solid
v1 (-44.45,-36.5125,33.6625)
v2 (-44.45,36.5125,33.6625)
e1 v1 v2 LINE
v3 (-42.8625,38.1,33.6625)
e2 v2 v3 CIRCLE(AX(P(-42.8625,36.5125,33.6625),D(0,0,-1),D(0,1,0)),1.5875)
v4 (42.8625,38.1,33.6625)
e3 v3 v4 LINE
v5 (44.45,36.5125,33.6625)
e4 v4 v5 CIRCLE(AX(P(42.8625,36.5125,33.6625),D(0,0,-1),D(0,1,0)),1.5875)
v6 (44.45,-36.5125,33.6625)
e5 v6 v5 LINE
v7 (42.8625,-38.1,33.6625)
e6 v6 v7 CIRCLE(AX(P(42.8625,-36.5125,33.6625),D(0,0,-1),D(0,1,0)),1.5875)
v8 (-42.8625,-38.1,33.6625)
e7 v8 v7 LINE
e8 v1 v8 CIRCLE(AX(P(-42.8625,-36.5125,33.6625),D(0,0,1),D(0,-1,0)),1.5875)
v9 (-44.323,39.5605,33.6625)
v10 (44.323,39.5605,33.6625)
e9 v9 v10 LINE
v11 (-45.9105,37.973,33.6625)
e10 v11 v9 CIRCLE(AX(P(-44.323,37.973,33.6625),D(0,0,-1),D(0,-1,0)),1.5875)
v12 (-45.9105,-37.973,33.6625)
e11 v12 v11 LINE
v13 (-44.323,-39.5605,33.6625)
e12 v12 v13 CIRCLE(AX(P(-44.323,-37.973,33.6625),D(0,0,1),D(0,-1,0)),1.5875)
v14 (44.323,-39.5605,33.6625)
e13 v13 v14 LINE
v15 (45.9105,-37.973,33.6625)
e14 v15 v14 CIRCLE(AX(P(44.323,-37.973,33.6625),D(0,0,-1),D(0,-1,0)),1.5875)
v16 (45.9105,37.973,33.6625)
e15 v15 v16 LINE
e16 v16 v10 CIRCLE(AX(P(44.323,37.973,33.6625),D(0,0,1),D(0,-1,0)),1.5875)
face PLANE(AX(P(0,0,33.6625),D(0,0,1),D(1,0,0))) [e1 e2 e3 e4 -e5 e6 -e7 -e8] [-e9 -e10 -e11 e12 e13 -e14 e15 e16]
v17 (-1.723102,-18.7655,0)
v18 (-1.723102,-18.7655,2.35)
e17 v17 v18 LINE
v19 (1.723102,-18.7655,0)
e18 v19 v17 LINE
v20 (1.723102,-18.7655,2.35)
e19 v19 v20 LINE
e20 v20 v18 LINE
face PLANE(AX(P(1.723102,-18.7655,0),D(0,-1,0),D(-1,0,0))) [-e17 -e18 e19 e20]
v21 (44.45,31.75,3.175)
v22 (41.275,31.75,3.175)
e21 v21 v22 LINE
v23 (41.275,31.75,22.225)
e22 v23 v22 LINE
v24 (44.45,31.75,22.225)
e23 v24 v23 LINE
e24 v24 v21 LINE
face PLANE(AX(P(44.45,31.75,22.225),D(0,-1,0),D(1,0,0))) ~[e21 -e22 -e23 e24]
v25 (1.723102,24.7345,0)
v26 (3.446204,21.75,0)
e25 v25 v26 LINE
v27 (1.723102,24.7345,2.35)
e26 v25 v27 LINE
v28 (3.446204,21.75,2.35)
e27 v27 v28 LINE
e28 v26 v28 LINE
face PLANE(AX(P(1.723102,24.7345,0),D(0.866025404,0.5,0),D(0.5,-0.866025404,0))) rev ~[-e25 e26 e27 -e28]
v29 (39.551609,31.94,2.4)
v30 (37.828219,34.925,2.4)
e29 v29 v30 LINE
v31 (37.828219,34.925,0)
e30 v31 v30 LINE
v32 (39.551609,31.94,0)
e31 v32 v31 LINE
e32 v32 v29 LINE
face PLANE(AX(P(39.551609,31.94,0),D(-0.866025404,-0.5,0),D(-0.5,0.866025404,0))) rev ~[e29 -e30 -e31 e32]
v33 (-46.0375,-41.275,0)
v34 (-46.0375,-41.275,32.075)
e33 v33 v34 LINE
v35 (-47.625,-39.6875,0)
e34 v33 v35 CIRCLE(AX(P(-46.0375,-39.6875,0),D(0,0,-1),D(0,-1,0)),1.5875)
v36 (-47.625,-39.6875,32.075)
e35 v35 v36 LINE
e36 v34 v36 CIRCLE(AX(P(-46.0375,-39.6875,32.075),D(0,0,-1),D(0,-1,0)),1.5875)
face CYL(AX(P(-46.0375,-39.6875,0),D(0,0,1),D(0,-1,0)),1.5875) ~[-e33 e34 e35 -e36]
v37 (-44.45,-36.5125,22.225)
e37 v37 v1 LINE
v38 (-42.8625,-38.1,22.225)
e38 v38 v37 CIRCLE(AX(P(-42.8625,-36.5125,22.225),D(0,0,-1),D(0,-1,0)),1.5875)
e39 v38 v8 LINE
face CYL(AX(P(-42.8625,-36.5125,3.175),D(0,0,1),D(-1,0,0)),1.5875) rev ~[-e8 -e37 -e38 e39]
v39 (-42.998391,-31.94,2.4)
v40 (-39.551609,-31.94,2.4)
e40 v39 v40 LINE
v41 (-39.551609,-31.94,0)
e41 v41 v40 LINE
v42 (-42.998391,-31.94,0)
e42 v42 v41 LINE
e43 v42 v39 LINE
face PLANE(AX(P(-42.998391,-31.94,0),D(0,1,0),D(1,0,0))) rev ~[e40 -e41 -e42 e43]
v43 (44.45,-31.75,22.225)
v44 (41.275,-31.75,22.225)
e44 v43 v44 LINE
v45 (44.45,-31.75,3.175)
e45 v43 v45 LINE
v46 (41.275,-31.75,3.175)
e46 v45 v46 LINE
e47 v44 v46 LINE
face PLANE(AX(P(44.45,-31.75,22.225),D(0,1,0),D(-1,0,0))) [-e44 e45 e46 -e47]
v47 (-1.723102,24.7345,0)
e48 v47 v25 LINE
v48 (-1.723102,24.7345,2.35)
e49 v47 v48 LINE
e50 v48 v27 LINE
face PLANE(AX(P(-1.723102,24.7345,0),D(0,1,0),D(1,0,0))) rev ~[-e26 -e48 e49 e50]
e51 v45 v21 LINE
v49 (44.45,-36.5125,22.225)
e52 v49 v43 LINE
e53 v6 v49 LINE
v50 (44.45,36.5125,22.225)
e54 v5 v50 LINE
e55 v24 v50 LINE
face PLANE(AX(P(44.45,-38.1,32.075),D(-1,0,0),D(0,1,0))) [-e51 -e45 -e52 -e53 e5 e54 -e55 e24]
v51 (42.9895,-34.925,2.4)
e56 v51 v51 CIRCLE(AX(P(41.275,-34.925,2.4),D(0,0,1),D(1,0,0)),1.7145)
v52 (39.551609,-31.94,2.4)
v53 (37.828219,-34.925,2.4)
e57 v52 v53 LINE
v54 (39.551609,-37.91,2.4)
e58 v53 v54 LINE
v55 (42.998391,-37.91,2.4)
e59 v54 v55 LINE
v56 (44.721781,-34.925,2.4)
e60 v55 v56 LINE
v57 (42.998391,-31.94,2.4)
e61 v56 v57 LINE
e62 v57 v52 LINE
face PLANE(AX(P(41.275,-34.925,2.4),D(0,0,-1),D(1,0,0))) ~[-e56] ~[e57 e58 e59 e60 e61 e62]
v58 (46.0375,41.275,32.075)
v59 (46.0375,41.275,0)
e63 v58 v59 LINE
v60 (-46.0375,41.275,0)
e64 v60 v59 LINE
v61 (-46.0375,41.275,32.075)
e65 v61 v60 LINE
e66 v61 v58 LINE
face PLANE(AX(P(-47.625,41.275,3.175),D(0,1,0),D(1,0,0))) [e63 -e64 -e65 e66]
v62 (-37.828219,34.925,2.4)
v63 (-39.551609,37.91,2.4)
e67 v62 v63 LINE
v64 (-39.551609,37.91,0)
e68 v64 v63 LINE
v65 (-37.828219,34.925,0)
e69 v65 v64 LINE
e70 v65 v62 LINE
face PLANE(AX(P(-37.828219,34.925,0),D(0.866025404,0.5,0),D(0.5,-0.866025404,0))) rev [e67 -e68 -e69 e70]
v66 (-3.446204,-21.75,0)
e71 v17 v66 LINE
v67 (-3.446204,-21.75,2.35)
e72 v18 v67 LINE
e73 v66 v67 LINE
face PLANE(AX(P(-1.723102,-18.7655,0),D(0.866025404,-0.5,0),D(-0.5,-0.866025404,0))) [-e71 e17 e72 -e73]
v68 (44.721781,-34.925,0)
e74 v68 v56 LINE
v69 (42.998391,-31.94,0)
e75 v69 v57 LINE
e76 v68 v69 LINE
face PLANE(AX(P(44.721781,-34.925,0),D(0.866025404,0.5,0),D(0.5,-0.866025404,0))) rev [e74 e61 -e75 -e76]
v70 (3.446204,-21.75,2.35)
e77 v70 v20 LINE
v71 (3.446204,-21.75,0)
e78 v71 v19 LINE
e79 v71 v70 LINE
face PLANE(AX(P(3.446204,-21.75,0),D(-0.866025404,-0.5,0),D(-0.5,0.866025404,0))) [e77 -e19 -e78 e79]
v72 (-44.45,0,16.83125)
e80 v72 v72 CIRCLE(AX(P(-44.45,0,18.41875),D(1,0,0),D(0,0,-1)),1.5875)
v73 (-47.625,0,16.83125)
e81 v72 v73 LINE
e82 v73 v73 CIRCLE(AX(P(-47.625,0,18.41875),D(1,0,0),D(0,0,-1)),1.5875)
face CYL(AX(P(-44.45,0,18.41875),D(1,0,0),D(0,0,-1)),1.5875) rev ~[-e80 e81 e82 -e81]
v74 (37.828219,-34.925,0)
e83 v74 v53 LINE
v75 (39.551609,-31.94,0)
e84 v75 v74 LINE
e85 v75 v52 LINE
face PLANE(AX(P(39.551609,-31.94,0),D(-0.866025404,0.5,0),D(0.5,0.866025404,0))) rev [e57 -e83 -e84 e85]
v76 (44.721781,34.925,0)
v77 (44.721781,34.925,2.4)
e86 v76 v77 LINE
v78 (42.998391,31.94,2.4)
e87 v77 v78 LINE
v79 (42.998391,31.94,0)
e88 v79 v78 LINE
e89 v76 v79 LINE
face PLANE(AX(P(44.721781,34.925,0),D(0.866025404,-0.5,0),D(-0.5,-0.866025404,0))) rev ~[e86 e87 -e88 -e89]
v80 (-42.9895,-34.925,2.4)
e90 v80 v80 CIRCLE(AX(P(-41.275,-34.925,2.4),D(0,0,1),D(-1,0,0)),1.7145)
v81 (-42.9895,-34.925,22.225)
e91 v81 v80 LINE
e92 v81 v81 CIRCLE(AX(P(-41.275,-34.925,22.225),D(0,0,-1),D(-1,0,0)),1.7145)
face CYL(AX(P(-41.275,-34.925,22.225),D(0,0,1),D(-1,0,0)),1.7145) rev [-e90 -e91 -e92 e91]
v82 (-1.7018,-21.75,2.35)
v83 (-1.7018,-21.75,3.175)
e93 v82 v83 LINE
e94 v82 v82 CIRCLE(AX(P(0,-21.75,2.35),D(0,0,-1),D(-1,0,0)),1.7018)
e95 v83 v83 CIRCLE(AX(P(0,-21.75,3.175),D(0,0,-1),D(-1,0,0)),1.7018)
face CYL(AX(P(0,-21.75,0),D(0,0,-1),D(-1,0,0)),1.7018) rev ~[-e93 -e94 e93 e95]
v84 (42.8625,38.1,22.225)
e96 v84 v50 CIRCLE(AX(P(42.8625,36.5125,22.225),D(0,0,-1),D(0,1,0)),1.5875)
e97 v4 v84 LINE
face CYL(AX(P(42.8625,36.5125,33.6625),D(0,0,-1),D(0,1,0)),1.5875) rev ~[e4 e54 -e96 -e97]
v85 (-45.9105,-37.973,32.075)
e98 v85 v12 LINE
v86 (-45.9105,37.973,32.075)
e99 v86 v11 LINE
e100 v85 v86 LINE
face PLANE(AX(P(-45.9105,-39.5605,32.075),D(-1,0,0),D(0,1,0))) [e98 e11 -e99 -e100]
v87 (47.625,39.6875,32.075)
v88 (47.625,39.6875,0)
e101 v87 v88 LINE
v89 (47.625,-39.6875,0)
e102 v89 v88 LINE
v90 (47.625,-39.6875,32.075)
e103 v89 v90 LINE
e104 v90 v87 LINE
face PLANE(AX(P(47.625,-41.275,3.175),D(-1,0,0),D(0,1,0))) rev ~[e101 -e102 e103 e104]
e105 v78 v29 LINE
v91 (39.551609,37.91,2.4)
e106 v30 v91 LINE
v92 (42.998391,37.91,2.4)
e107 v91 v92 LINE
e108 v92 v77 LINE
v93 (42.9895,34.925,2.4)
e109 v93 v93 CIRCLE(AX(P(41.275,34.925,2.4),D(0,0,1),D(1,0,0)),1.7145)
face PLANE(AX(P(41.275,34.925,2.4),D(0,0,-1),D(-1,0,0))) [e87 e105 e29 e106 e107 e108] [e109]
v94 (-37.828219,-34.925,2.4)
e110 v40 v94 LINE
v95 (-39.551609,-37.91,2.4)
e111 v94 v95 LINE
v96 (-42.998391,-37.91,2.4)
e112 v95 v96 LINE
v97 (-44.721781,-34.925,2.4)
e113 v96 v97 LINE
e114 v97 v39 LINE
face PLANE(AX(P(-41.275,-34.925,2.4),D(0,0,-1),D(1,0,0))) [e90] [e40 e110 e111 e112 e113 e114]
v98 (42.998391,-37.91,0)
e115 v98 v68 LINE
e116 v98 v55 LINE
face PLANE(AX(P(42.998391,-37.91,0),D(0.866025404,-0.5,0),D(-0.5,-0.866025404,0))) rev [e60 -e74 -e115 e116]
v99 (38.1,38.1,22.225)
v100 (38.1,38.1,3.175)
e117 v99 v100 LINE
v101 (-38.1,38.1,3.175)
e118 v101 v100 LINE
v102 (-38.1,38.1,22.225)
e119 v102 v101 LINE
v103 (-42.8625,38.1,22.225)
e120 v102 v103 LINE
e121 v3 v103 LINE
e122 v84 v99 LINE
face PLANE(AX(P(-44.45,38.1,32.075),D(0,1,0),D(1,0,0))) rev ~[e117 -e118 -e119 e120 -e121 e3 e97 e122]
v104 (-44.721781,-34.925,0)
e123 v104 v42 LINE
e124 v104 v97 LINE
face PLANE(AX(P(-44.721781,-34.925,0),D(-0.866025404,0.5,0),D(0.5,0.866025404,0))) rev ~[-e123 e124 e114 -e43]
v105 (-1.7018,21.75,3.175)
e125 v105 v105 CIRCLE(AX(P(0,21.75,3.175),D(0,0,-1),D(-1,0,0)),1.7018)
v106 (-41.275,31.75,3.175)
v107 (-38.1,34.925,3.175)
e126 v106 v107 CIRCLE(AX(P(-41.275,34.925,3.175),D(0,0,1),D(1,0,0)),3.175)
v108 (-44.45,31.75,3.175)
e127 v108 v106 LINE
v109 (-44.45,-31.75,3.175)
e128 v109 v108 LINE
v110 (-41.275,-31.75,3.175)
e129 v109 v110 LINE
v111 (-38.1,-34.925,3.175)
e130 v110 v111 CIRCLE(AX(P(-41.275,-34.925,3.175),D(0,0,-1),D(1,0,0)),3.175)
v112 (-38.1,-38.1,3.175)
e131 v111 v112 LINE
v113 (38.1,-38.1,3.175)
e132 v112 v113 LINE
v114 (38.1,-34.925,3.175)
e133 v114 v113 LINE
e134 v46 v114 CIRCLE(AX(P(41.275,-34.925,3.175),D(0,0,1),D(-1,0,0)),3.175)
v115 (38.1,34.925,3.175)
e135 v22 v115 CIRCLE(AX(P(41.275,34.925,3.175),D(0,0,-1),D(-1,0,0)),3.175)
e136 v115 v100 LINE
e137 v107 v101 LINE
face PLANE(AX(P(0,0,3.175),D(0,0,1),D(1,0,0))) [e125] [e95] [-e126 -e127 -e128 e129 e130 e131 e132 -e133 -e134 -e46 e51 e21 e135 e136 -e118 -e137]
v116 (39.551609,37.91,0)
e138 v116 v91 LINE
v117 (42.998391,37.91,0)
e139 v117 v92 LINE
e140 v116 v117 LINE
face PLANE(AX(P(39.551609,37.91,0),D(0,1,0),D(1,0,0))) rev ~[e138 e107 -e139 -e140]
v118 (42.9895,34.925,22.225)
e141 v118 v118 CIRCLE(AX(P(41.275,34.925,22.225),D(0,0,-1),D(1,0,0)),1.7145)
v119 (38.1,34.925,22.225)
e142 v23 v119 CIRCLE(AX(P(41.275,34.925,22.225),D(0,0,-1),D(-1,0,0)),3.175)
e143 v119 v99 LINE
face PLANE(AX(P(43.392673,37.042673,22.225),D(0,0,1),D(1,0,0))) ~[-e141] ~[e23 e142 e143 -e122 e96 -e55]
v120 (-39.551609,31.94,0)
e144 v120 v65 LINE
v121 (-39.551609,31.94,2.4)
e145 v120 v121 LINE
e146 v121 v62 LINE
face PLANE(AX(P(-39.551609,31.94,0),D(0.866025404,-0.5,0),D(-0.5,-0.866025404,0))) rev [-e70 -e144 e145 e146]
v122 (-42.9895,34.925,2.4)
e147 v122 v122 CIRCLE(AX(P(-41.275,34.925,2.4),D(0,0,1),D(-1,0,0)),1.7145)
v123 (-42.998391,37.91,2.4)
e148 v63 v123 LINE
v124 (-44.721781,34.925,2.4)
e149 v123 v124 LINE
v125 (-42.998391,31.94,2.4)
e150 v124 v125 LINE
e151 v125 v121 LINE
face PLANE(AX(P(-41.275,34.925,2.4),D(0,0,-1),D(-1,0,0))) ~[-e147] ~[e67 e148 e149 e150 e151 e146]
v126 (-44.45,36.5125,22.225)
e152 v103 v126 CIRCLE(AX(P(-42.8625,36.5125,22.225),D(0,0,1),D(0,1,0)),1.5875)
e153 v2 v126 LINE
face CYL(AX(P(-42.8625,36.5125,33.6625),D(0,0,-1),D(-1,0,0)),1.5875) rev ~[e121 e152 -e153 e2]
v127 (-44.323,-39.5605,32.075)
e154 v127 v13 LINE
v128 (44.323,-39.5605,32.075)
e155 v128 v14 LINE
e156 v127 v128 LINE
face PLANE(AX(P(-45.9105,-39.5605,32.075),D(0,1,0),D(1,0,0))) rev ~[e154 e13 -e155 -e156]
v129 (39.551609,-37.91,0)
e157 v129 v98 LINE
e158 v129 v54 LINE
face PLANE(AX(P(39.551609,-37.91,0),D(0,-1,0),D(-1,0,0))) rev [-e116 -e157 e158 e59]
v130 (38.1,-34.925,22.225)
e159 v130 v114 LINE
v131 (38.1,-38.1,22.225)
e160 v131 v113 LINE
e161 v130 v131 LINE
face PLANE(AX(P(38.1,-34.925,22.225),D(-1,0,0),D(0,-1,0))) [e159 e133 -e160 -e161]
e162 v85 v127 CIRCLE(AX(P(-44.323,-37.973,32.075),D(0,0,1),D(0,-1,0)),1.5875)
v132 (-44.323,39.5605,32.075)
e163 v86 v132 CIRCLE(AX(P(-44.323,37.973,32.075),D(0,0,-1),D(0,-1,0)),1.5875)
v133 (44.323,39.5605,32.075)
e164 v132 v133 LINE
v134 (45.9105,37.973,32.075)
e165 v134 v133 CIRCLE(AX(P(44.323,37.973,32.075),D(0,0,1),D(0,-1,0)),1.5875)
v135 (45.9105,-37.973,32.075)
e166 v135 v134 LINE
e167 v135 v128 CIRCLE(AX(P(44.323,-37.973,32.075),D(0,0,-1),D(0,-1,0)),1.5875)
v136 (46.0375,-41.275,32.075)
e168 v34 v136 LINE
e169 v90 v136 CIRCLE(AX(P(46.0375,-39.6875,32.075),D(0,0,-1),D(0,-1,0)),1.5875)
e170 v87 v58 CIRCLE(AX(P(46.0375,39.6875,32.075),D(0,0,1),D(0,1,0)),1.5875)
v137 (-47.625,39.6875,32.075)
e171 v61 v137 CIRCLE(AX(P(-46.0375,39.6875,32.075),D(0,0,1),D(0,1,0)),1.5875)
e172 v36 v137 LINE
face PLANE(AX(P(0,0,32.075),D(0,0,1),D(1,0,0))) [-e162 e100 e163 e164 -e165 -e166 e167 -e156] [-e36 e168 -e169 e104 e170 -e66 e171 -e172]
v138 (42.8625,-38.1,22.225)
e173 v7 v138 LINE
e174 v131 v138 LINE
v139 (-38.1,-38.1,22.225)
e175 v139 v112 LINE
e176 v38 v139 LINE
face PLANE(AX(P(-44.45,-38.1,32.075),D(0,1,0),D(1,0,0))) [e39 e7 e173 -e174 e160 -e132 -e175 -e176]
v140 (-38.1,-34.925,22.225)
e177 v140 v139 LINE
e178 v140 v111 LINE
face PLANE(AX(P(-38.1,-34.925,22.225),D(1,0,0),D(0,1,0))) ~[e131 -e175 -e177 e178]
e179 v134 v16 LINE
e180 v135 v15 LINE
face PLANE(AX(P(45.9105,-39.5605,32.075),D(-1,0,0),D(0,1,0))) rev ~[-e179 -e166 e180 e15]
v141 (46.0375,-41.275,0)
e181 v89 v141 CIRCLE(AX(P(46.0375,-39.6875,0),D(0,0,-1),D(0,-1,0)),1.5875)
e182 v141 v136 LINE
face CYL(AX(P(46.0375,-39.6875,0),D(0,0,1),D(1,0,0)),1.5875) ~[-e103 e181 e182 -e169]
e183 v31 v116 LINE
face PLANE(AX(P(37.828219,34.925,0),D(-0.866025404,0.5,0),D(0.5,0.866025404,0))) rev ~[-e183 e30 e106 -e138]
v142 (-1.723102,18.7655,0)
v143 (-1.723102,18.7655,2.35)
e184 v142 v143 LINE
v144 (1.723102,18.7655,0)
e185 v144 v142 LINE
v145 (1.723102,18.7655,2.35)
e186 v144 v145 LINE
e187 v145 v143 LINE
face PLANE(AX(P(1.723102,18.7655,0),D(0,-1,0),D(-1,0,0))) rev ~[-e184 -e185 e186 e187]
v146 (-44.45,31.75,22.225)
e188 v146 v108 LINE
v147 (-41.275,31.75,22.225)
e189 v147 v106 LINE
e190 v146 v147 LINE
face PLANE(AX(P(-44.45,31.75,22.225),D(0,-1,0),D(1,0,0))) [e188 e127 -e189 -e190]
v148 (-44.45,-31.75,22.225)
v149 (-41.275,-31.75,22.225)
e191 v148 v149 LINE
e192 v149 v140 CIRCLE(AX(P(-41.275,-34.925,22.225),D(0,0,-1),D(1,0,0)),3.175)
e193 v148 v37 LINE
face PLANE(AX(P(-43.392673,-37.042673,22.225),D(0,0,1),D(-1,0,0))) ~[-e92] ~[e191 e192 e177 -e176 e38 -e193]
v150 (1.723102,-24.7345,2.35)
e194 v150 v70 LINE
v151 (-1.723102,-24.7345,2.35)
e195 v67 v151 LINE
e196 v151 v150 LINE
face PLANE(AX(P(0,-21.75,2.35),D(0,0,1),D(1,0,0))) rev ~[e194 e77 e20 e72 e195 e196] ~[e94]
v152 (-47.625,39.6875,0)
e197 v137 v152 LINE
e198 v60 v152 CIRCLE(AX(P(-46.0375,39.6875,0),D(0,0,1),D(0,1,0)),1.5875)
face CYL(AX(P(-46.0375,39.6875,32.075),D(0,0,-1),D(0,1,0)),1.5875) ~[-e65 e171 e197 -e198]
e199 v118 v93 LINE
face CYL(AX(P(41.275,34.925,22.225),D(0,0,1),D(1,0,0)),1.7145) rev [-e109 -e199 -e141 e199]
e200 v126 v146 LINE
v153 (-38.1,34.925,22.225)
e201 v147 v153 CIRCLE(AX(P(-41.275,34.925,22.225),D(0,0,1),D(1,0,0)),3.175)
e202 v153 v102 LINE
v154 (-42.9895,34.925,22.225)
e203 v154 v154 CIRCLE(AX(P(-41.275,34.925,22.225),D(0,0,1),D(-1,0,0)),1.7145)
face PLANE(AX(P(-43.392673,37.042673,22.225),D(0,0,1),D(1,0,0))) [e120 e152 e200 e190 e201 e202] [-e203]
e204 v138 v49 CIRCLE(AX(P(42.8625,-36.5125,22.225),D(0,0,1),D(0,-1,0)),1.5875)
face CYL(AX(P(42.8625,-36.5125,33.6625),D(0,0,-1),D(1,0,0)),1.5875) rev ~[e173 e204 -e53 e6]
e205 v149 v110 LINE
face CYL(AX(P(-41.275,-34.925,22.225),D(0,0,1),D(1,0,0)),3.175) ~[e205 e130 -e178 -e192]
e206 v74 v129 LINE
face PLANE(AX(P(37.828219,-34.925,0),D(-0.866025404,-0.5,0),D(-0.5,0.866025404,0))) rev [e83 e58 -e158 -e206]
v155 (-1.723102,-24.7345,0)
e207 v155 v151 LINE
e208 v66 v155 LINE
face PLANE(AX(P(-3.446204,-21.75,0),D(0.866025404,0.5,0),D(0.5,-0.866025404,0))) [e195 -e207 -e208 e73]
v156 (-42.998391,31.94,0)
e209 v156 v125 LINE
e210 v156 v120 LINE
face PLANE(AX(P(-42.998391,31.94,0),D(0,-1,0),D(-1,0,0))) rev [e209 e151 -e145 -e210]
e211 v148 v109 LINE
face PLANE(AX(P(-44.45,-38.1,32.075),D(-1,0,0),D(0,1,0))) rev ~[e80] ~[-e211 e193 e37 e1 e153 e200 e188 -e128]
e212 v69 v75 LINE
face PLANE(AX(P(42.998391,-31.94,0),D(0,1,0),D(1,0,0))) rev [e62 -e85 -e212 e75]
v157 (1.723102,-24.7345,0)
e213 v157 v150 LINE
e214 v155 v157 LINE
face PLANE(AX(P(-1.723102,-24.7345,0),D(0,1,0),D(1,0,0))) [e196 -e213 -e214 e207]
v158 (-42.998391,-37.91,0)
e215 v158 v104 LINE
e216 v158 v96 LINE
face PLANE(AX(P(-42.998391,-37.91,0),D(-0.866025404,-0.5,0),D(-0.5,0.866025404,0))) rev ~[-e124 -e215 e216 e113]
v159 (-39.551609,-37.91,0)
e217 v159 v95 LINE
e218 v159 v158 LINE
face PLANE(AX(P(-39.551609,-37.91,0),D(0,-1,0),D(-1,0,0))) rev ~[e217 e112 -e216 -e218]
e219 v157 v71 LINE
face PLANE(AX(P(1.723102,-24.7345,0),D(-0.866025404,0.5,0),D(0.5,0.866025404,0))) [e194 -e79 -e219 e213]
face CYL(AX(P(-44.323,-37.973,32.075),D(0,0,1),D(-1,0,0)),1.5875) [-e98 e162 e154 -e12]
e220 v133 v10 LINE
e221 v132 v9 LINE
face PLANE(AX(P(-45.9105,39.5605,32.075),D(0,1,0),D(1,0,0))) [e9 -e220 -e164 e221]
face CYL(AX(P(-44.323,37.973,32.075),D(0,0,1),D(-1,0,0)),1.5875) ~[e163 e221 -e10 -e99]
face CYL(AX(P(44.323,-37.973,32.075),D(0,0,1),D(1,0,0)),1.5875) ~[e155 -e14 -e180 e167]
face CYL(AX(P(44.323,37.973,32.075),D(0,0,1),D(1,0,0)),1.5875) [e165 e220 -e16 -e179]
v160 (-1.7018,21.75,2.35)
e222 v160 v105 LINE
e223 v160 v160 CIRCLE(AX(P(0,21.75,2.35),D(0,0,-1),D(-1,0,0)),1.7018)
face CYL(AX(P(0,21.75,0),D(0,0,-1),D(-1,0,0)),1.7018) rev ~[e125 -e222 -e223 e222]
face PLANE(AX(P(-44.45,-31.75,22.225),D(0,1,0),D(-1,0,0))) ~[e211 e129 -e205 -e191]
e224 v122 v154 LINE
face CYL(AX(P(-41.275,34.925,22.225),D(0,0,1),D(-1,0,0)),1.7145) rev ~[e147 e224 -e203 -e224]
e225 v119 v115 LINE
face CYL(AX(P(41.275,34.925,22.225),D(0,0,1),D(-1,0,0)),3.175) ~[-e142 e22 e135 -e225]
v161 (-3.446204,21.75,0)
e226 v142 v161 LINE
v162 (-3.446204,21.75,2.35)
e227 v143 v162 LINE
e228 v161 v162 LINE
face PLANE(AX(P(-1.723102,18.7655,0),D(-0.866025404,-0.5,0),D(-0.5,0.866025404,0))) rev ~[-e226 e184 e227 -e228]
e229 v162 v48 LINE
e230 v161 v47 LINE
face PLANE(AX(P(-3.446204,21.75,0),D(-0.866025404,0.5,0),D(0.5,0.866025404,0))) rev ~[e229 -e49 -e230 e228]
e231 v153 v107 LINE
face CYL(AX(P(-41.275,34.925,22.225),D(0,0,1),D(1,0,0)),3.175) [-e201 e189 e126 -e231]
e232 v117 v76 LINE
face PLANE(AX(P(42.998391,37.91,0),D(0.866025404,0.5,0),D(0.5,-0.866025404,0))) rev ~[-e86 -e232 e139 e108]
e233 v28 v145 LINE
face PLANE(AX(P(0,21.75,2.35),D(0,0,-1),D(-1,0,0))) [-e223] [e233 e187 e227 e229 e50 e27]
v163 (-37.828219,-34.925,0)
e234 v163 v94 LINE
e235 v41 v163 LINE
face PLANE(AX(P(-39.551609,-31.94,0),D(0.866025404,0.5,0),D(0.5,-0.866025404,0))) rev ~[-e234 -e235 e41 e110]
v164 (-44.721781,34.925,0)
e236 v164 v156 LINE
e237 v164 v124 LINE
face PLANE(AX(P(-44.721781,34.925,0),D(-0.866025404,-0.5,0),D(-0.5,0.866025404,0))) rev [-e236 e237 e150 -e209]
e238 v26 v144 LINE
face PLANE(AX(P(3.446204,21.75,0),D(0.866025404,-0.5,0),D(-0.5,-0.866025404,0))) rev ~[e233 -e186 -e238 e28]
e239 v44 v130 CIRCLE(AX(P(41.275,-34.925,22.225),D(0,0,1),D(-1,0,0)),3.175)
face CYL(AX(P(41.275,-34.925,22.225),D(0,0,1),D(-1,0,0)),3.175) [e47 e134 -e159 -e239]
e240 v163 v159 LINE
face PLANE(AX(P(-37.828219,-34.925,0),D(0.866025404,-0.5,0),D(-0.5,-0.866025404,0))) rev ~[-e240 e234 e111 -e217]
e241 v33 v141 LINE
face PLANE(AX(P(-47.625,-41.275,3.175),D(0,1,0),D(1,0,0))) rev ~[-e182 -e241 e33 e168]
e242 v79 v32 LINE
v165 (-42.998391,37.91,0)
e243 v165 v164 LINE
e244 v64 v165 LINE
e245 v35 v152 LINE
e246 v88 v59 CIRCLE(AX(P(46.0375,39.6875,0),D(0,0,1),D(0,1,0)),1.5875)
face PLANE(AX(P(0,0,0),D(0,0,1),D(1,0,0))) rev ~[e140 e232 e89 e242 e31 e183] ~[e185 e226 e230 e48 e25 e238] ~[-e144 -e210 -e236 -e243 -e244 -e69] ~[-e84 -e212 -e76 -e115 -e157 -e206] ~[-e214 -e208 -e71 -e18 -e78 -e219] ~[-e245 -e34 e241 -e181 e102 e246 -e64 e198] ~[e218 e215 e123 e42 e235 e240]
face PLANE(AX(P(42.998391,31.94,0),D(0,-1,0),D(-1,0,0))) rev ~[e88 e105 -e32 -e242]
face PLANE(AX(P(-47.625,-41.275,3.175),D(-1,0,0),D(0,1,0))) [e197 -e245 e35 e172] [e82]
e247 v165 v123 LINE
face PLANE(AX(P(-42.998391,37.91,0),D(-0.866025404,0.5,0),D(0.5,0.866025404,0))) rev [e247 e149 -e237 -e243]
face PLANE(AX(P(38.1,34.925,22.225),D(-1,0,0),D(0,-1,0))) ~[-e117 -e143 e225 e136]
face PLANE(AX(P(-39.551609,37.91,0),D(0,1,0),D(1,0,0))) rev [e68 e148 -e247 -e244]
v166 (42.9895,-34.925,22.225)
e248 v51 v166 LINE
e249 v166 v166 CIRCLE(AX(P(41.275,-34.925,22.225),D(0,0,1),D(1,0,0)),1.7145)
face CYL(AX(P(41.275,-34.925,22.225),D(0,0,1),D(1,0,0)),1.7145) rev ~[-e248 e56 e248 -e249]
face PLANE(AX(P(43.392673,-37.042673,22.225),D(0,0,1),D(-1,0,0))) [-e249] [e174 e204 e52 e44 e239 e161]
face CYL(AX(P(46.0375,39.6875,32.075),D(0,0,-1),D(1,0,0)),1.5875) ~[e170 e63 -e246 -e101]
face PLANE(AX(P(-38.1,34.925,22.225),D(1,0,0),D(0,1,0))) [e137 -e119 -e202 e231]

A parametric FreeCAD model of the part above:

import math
import FreeCAD as App
import Part
import Sketcher

V = App.Vector
Q = App.Units.Quantity


def edges_at(feature, points):
    """Names of the edges that pass closest to the given points."""
    edges = feature.Shape.Edges
    near = lambda p: min(range(len(edges)), key=lambda i: edges[i].distToShape(Part.Vertex(*p))[0])
    return sorted({f"Edge{near(p) + 1}" for p in points})

doc = App.newDocument("Part")
body = doc.addObject("PartDesign::Body", "Body")

# Sketch on XY plane
sketch1 = doc.addObject("Sketcher::SketchObject", "Sketch")
body.addObject(sketch1)
sketch1.AttachmentSupport = (doc.XY_Plane, [""])
sketch1.MapMode = "FlatFace"
sketch1.addGeometry([
    Part.LineSegment(V(-48, 41, 0), V(-48, -41, 0)),
    Part.LineSegment(V(-48, -41, 0), V(48, -41, 0)),
    Part.LineSegment(V(48, -41, 0), V(48, 41, 0)),
    Part.LineSegment(V(48, 41, 0), V(-48, 41, 0)),
], False)
sketch1.addConstraint([
    Sketcher.Constraint("Coincident", 0, 2, 1, 1),
    Sketcher.Constraint("Coincident", 1, 2, 2, 1),
    Sketcher.Constraint("Coincident", 2, 2, 3, 1),
    Sketcher.Constraint("Coincident", 3, 2, 0, 1),
    Sketcher.Constraint("Vertical", 0),
    Sketcher.Constraint("Horizontal", 1),
    Sketcher.Constraint("Vertical", 2),
    Sketcher.Constraint("Horizontal", 3),
    Sketcher.Constraint("Symmetric", 0, 2, 2, 2, -1, 1),
    Sketcher.Constraint("DistanceX", 1, 1, 1, 2, Q("3.75 in")),
    Sketcher.Constraint("DistanceY", 0, 2, 0, 1, Q("3.25 in")),
])
pad1 = doc.addObject("PartDesign::Pad", "Pad")
body.addObject(pad1)
pad1.Profile = sketch1
pad1.Length = Q("0.125 in")

# Sketch on XY plane
sketch2 = doc.addObject("Sketcher::SketchObject", "Sketch001")
body.addObject(sketch2)
sketch2.AttachmentSupport = (doc.XY_Plane, [""])
sketch2.MapMode = "FlatFace"
sketch2.AttachmentOffset = App.Placement(V(0, 0, 0.125 * 25.4), App.Rotation())
sketch2.addGeometry([
    Part.LineSegment(V(-48, 41, 0), V(-48, -41, 0)),  # 0
    Part.LineSegment(V(-48, -41, 0), V(48, -41, 0)),  # 1
    Part.LineSegment(V(48, -41, 0), V(48, 41, 0)),  # 2
    Part.LineSegment(V(48, 41, 0), V(-48, 41, 0)),  # 3
    Part.LineSegment(V(44, -38, 0), V(-44, -38, 0)),  # 4
    Part.LineSegment(V(-44, -38, 0), V(-44, 38, 0)),  # 5
    Part.LineSegment(V(-44, 38, 0), V(44, 38, 0)),  # 6
    Part.LineSegment(V(44, 38, 0), V(44, -38, 0)),  # 7
], False)
sketch2.addConstraint([
    Sketcher.Constraint("Coincident", 0, 2, 1, 1),
    Sketcher.Constraint("Coincident", 1, 2, 2, 1),
    Sketcher.Constraint("Coincident", 2, 2, 3, 1),
    Sketcher.Constraint("Coincident", 3, 2, 0, 1),
    Sketcher.Constraint("Coincident", 4, 2, 5, 1),
    Sketcher.Constraint("Coincident", 5, 2, 6, 1),
    Sketcher.Constraint("Coincident", 6, 2, 7, 1),
    Sketcher.Constraint("Coincident", 7, 2, 4, 1),
    Sketcher.Constraint("Vertical", 0),
    Sketcher.Constraint("Horizontal", 1),
    Sketcher.Constraint("Vertical", 2),
    Sketcher.Constraint("Horizontal", 3),
    Sketcher.Constraint("Horizontal", 4),
    Sketcher.Constraint("Vertical", 5),
    Sketcher.Constraint("Horizontal", 6),
    Sketcher.Constraint("Vertical", 7),
    Sketcher.Constraint("Symmetric", 0, 2, 2, 2, -1, 1),
    Sketcher.Constraint("Symmetric", 4, 2, 6, 2, -1, 1),
    Sketcher.Constraint("DistanceY", 5, 1, 5, 2, Q("3 in")),
    Sketcher.Constraint("DistanceX", 4, 2, 4, 1, Q("3.5 in")),
    Sketcher.Constraint("DistanceX", 1, 1, 1, 2, Q("3.75 in")),
    Sketcher.Constraint("DistanceY", 0, 2, 0, 1, Q("3.25 in")),
])
pad2 = doc.addObject("PartDesign::Pad", "Pad001")
body.addObject(pad2)
pad2.Profile = sketch2
pad2.Length = 28.9

# Sketch on XY plane
sketch3 = doc.addObject("Sketcher::SketchObject", "Sketch002")
body.addObject(sketch3)
sketch3.AttachmentSupport = (doc.XY_Plane, [""])
sketch3.MapMode = "FlatFace"
sketch3.AttachmentOffset = App.Placement(V(0, 0, 32.075), App.Rotation())
sketch3.addGeometry([
    Part.LineSegment(V(-46, 40, 0), V(-46, -40, 0)),  # 0
    Part.LineSegment(V(-46, -40, 0), V(46, -40, 0)),  # 1
    Part.LineSegment(V(46, -40, 0), V(46, 40, 0)),  # 2
    Part.LineSegment(V(46, 40, 0), V(-46, 40, 0)),  # 3
    Part.LineSegment(V(44, -38, 0), V(-44, -38, 0)),  # 4
    Part.LineSegment(V(-44, -38, 0), V(-44, 38, 0)),  # 5
    Part.LineSegment(V(-44, 38, 0), V(44, 38, 0)),  # 6
    Part.LineSegment(V(44, 38, 0), V(44, -38, 0)),  # 7
], False)
sketch3.addConstraint([
    Sketcher.Constraint("Coincident", 0, 2, 1, 1),
    Sketcher.Constraint("Coincident", 1, 2, 2, 1),
    Sketcher.Constraint("Coincident", 2, 2, 3, 1),
    Sketcher.Constraint("Coincident", 3, 2, 0, 1),
    Sketcher.Constraint("Coincident", 4, 2, 5, 1),
    Sketcher.Constraint("Coincident", 5, 2, 6, 1),
    Sketcher.Constraint("Coincident", 6, 2, 7, 1),
    Sketcher.Constraint("Coincident", 7, 2, 4, 1),
    Sketcher.Constraint("Vertical", 0),
    Sketcher.Constraint("Horizontal", 1),
    Sketcher.Constraint("Vertical", 2),
    Sketcher.Constraint("Horizontal", 3),
    Sketcher.Constraint("Horizontal", 4),
    Sketcher.Constraint("Vertical", 5),
    Sketcher.Constraint("Horizontal", 6),
    Sketcher.Constraint("Vertical", 7),
    Sketcher.Constraint("Symmetric", 0, 2, 2, 2, -1, 1),
    Sketcher.Constraint("Symmetric", 4, 2, 6, 2, -1, 1),
    Sketcher.Constraint("DistanceY", 5, 1, 5, 2, Q("3 in")),
    Sketcher.Constraint("DistanceX", 4, 2, 4, 1, Q("3.5 in")),
    Sketcher.Constraint("DistanceX", 1, 1, 1, 2, Q("3.615 in")),
    Sketcher.Constraint("DistanceY", 0, 2, 0, 1, Q("3.115 in")),
])
pad3 = doc.addObject("PartDesign::Pad", "Pad002")
body.addObject(pad3)
pad3.Profile = sketch3
pad3.Length = Q("0.0625 in")
doc.recompute()

fillet = doc.addObject("PartDesign::Fillet", "Fillet")
body.addObject(fillet)
fillet.Base = (pad3, edges_at(pad3, [
    (44.45, 38.1, 18.419),
    (-44.45, 38.1, 18.419),
    (-44.45, -38.1, 18.419),
    (44.45, -38.1, 18.419),
    (45.91, -39.56, 32.869),
    (45.91, 39.56, 32.869),
    (-45.91, 39.56, 32.869),
    (-45.91, -39.56, 32.869),
    (47.625, -41.275, 16.038),
    (-47.625, -41.275, 16.038),
    (-47.625, 41.275, 16.038),
    (47.625, 41.275, 16.038),
]))
fillet.Radius = Q("0.0625 in")

# Sketch on XY plane
sketch4 = doc.addObject("Sketcher::SketchObject", "Sketch003")
body.addObject(sketch4)
sketch4.AttachmentSupport = (doc.XY_Plane, [""])
sketch4.MapMode = "FlatFace"
sketch4.addGeometry([
    Part.Circle(V(0, 21.7, 0), V(0, 0, 1), 1.7),
    Part.Circle(V(0, -21.7, 0), V(0, 0, 1), 1.7),
], False)
sketch4.addConstraint([
    Sketcher.Constraint("Equal", 0, 1),
    Sketcher.Constraint("Symmetric", 0, 3, 1, 3, -1, 1),
    Sketcher.Constraint("PointOnObject", 0, 3, -2),
    Sketcher.Constraint("Diameter", 0, Q("0.134 in")),
    Sketcher.Constraint("DistanceY", -1, 1, 0, 3, 21.75),
])
pocket1 = doc.addObject("PartDesign::Pocket", "Pocket")
body.addObject(pocket1)
pocket1.Profile = sketch4
pocket1.Type = "ThroughAll"
pocket1.Reversed = True

# Sketch on XY plane
sketch5 = doc.addObject("Sketcher::SketchObject", "Sketch004")
body.addObject(sketch5)
sketch5.AttachmentSupport = (doc.XY_Plane, [""])
sketch5.MapMode = "FlatFace"
sketch5.addGeometry([
    Part.LineSegment(V(-3.4, 21.7, 0), V(-1.7, 24.7, 0)),  # 0
    Part.LineSegment(V(-1.7, 24.7, 0), V(1.7, 24.7, 0)),  # 1
    Part.LineSegment(V(1.7, 24.7, 0), V(3.4, 21.7, 0)),  # 2
    Part.LineSegment(V(3.4, 21.7, 0), V(1.7, 18.8, 0)),  # 3
    Part.LineSegment(V(1.7, 18.8, 0), V(-1.7, 18.8, 0)),  # 4
    Part.LineSegment(V(-1.7, 18.8, 0), V(-3.4, 21.7, 0)),  # 5
    Part.LineSegment(V(-3.4, -21.7, 0), V(-1.7, -18.8, 0)),  # 6
    Part.LineSegment(V(-1.7, -18.8, 0), V(1.7, -18.8, 0)),  # 7
    Part.LineSegment(V(1.7, -18.8, 0), V(3.4, -21.7, 0)),  # 8
    Part.LineSegment(V(3.4, -21.7, 0), V(1.7, -24.7, 0)),  # 9
    Part.LineSegment(V(1.7, -24.7, 0), V(-1.7, -24.7, 0)),  # 10
    Part.LineSegment(V(-1.7, -24.7, 0), V(-3.4, -21.7, 0)),  # 11
], False)
sketch5.addConstraint([
    Sketcher.Constraint("Coincident", 0, 2, 1, 1),
    Sketcher.Constraint("Coincident", 1, 2, 2, 1),
    Sketcher.Constraint("Coincident", 2, 2, 3, 1),
    Sketcher.Constraint("Coincident", 3, 2, 4, 1),
    Sketcher.Constraint("Coincident", 4, 2, 5, 1),
    Sketcher.Constraint("Coincident", 5, 2, 0, 1),
    Sketcher.Constraint("Coincident", 6, 2, 7, 1),
    Sketcher.Constraint("Coincident", 7, 2, 8, 1),
    Sketcher.Constraint("Coincident", 8, 2, 9, 1),
    Sketcher.Constraint("Coincident", 9, 2, 10, 1),
    Sketcher.Constraint("Coincident", 10, 2, 11, 1),
    Sketcher.Constraint("Coincident", 11, 2, 6, 1),
    Sketcher.Constraint("Horizontal", 1),
    Sketcher.Constraint("Horizontal", 4),
    Sketcher.Constraint("Horizontal", 7),
    Sketcher.Constraint("Horizontal", 10),
    Sketcher.Constraint("Symmetric", 3, 2, 6, 2, -1, 1),
    Sketcher.Constraint("Symmetric", 5, 2, 8, 2, -1, 1),
    Sketcher.Constraint("Symmetric", 0, 2, 9, 2, -1, 1),
    Sketcher.Constraint("Symmetric", 2, 2, 11, 2, -1, 1),
    Sketcher.Constraint("Symmetric", 2, 2, 5, 2, -2),
    Sketcher.Constraint("Parallel", 0, 3),
    Sketcher.Constraint("Parallel", 2, 5),
    Sketcher.Constraint("Parallel", 5, 8),
    Sketcher.Constraint("Parallel", 8, 11),
    Sketcher.Constraint("Vertical", 1, 2, 3, 2),
    Sketcher.Constraint("Vertical", 0, 2, 4, 2),
    Sketcher.Constraint("Angle", 0, Q("60 deg")),
    Sketcher.Constraint("DistanceY", 3, 2, 1, 2, Q("0.235 in")),
    Sketcher.Constraint("DistanceX", 0, 2, -1, 1, 1.723102),
    Sketcher.Constraint("DistanceY", -1, 1, 0, 2, 24.7345),
])
pocket2 = doc.addObject("PartDesign::Pocket", "Pocket001")
body.addObject(pocket2)
pocket2.Profile = sketch5
pocket2.Length = 2.35
pocket2.Reversed = True

# Sketch on XY plane
sketch6 = doc.addObject("Sketcher::SketchObject", "Sketch005")
body.addObject(sketch6)
sketch6.AttachmentSupport = (doc.XY_Plane, [""])
sketch6.MapMode = "FlatFace"
sketch6.AttachmentOffset = App.Placement(V(0, 0, 0.875 * 25.4), App.Rotation())
sketch6.addGeometry([
    Part.ArcOfCircle(Part.Circle(V(-42.9, 36.5, 0), V(0, 0, 1), 1.6), math.radians(90), math.radians(180)),  # 0
    Part.LineSegment(V(-44.5, 36.5, 0), V(-44.5, 31.8, 0)),  # 1
    Part.LineSegment(V(-44.5, 31.8, 0), V(-41.3, 31.8, 0)),  # 2
    Part.ArcOfCircle(Part.Circle(V(-41.3, 34.9, 0), V(0, 0, 1), 3.2), math.radians(-90), math.radians(0)),  # 3
    Part.LineSegment(V(-38.1, 34.9, 0), V(-38.1, 38.1, 0)),  # 4
    Part.LineSegment(V(-38.1, 38.1, 0), V(-42.9, 38.1, 0)),  # 5
    Part.Circle(V(-41.3, 34.9, 0), V(0, 0, 1), 1.7),  # 6
], False)
sketch6.addConstraint([
    Sketcher.Constraint("Tangent", 0, 2, 1, 1),
    Sketcher.Constraint("Coincident", 1, 2, 2, 1),
    Sketcher.Constraint("Tangent", 2, 2, 3, 1),
    Sketcher.Constraint("Tangent", 3, 2, 4, 1),
    Sketcher.Constraint("Coincident", 4, 2, 5, 1),
    Sketcher.Constraint("Tangent", 5, 2, 0, 1),
    Sketcher.Constraint("Vertical", 1),
    Sketcher.Constraint("Horizontal", 2),
    Sketcher.Constraint("Vertical", 4),
    Sketcher.Constraint("Horizontal", 5),
    Sketcher.Constraint("Coincident", 6, 3, 3, 3),
    Sketcher.Constraint("Equal", 5, 1),
    Sketcher.Constraint("Diameter", 6, Q("0.135 in")),
    Sketcher.Constraint("Radius", 0, Q("0.0625 in")),
    Sketcher.Constraint("Radius", 3, Q("0.125 in")),
    Sketcher.Constraint("DistanceX", 3, 2, -1, 1, Q("1.5 in")),
    Sketcher.Constraint("DistanceY", -1, 1, 4, 2, Q("1.5 in")),
    Sketcher.Constraint("DistanceX", 2, 1, 2, 2, Q("0.125 in")),
])
pad4 = doc.addObject("PartDesign::Pad", "Pad003")
body.addObject(pad4)
pad4.Profile = sketch6
pad4.Length = Q("0.75 in")
pad4.Reversed = True

# Sketch on XY plane
sketch7 = doc.addObject("Sketcher::SketchObject", "Sketch006")
body.addObject(sketch7)
sketch7.AttachmentSupport = (doc.XY_Plane, [""])
sketch7.MapMode = "FlatFace"
sketch7.AttachmentOffset = App.Placement(V(0, 0, 0.875 * 25.4), App.Rotation())
sketch7.addGeometry(Part.Circle(V(-41.3, 34.9, 0), V(0, 0, 1), 1.7), False)
sketch7.addConstraint([
    Sketcher.Constraint("Diameter", 0, Q("0.135 in")),
    Sketcher.Constraint("DistanceX", 0, 3, -1, 1, Q("1.625 in")),
    Sketcher.Constraint("DistanceY", -1, 1, 0, 3, Q("1.375 in")),
])
pocket3 = doc.addObject("PartDesign::Pocket", "Pocket002")
body.addObject(pocket3)
pocket3.Profile = sketch7
pocket3.Type = "ThroughAll"
doc.recompute()

mirrored = doc.addObject("PartDesign::Mirrored", "Mirrored")
body.addObject(mirrored)
mirrored.Originals = [pad4, pocket3]
mirrored.MirrorPlane = (doc.YZ_Plane, [""])
body.Tip = mirrored
doc.recompute()

mirrored2 = doc.addObject("PartDesign::Mirrored", "Mirrored001")
body.addObject(mirrored2)
mirrored2.Originals = [pad4, pocket3]
mirrored2.MirrorPlane = (doc.XZ_Plane, [""])
body.Tip = mirrored2

# Sketch on XY plane
sketch8 = doc.addObject("Sketcher::SketchObject", "Sketch007")
body.addObject(sketch8)
sketch8.AttachmentSupport = (doc.XY_Plane, [""])
sketch8.MapMode = "FlatFace"
sketch8.AttachmentOffset = App.Placement(V(0, 0, 0.875 * 25.4), App.Rotation())
sketch8.addGeometry([
    Part.ArcOfCircle(Part.Circle(V(42.9, -36.5, 0), V(0, 0, 1), 1.6), math.radians(-90), math.radians(0)),  # 0
    Part.LineSegment(V(44.5, -36.5, 0), V(44.5, -31.8, 0)),  # 1
    Part.LineSegment(V(44.5, -31.8, 0), V(41.3, -31.8, 0)),  # 2
    Part.ArcOfCircle(Part.Circle(V(41.3, -34.9, 0), V(0, 0, 1), 3.2), math.radians(90), math.radians(180)),  # 3
    Part.LineSegment(V(38.1, -34.9, 0), V(38.1, -38.1, 0)),  # 4
    Part.LineSegment(V(38.1, -38.1, 0), V(42.9, -38.1, 0)),  # 5
    Part.Circle(V(41.3, -34.9, 0), V(0, 0, 1), 1.7),  # 6
], False)
sketch8.addConstraint([
    Sketcher.Constraint("Tangent", 0, 2, 1, 1),
    Sketcher.Constraint("Coincident", 1, 2, 2, 1),
    Sketcher.Constraint("Tangent", 2, 2, 3, 1),
    Sketcher.Constraint("Tangent", 3, 2, 4, 1),
    Sketcher.Constraint("Coincident", 4, 2, 5, 1),
    Sketcher.Constraint("Tangent", 5, 2, 0, 1),
    Sketcher.Constraint("Vertical", 1),
    Sketcher.Constraint("Horizontal", 2),
    Sketcher.Constraint("Vertical", 4),
    Sketcher.Constraint("Horizontal", 5),
    Sketcher.Constraint("Coincident", 6, 3, 3, 3),
    Sketcher.Constraint("Equal", 5, 1),
    Sketcher.Constraint("Diameter", 6, Q("0.135 in")),
    Sketcher.Constraint("Radius", 0, Q("0.0625 in")),
    Sketcher.Constraint("Radius", 3, Q("0.125 in")),
    Sketcher.Constraint("DistanceX", -1, 1, 3, 2, Q("1.5 in")),
    Sketcher.Constraint("DistanceY", 4, 2, -1, 1, Q("1.5 in")),
    Sketcher.Constraint("DistanceX", 2, 2, 2, 1, Q("0.125 in")),
])
pad5 = doc.addObject("PartDesign::Pad", "Pad004")
body.addObject(pad5)
pad5.Profile = sketch8
pad5.Length = Q("0.75 in")
pad5.Reversed = True

# Sketch on XY plane
sketch9 = doc.addObject("Sketcher::SketchObject", "Sketch008")
body.addObject(sketch9)
sketch9.AttachmentSupport = (doc.XY_Plane, [""])
sketch9.MapMode = "FlatFace"
sketch9.AttachmentOffset = App.Placement(V(0, 0, 0.875 * 25.4), App.Rotation())
sketch9.addGeometry(Part.Circle(V(41.3, -34.9, 0), V(0, 0, 1), 1.7), False)
sketch9.addConstraint([
    Sketcher.Constraint("Diameter", 0, Q("0.135 in")),
    Sketcher.Constraint("DistanceX", -1, 1, 0, 3, Q("1.625 in")),
    Sketcher.Constraint("DistanceY", 0, 3, -1, 1, Q("1.375 in")),
])
pocket4 = doc.addObject("PartDesign::Pocket", "Pocket003")
body.addObject(pocket4)
pocket4.Profile = sketch9
pocket4.Type = "ThroughAll"

# Sketch on XY plane
sketch10 = doc.addObject("Sketcher::SketchObject", "Sketch009")
body.addObject(sketch10)
sketch10.AttachmentSupport = (doc.XY_Plane, [""])
sketch10.MapMode = "FlatFace"
sketch10.addGeometry([
    Part.LineSegment(V(37.8, 34.9, 0), V(39.6, 37.9, 0)),  # 0
    Part.LineSegment(V(39.6, 37.9, 0), V(43, 37.9, 0)),  # 1
    Part.LineSegment(V(43, 37.9, 0), V(44.7, 34.9, 0)),  # 2
    Part.LineSegment(V(44.7, 34.9, 0), V(43, 31.9, 0)),  # 3
    Part.LineSegment(V(43, 31.9, 0), V(39.6, 31.9, 0)),  # 4
    Part.LineSegment(V(39.6, 31.9, 0), V(37.8, 34.9, 0)),  # 5
], False)
sketch10.addConstraint([
    Sketcher.Constraint("Coincident", 0, 2, 1, 1),
    Sketcher.Constraint("Coincident", 1, 2, 2, 1),
    Sketcher.Constraint("Coincident", 2, 2, 3, 1),
    Sketcher.Constraint("Coincident", 3, 2, 4, 1),
    Sketcher.Constraint("Coincident", 4, 2, 5, 1),
    Sketcher.Constraint("Coincident", 5, 2, 0, 1),
    Sketcher.Constraint("Horizontal", 1),
    Sketcher.Constraint("Horizontal", 4),
    Sketcher.Constraint("Parallel", 0, 3),
    Sketcher.Constraint("Parallel", 2, 5),
    Sketcher.Constraint("Horizontal", 2, 2, 5, 2),
    Sketcher.Constraint("Vertical", 1, 2, 3, 2),
    Sketcher.Constraint("Vertical", 0, 2, 4, 2),
    Sketcher.Constraint("Angle", 0, Q("60 deg")),
    Sketcher.Constraint("DistanceX", 1, 1, 1, 2, Q("0.1357 in")),
    Sketcher.Constraint("DistanceY", -1, 1, 2, 2, Q("1.375 in")),
    Sketcher.Constraint("Distance", 0, Q("0.1357 in")),
    Sketcher.Constraint("DistanceX", -1, 1, 2, 2, Q("1.7607 in")),
])
pocket5 = doc.addObject("PartDesign::Pocket", "Pocket004")
body.addObject(pocket5)
pocket5.Profile = sketch10
pocket5.Length = 2.4
pocket5.Reversed = True
doc.recompute()

mirrored3 = doc.addObject("PartDesign::Mirrored", "Mirrored002")
body.addObject(mirrored3)
mirrored3.Originals = [pocket5]
mirrored3.MirrorPlane = (doc.YZ_Plane, [""])
body.Tip = mirrored3
doc.recompute()

mirrored4 = doc.addObject("PartDesign::Mirrored", "Mirrored003")
body.addObject(mirrored4)
mirrored4.Originals = [pocket5]
mirrored4.MirrorPlane = (doc.XZ_Plane, [""])
body.Tip = mirrored4

# Sketch on XY plane
sketch11 = doc.addObject("Sketcher::SketchObject", "Sketch010")
body.addObject(sketch11)
sketch11.AttachmentSupport = (doc.XY_Plane, [""])
sketch11.MapMode = "FlatFace"
sketch11.addGeometry([
    Part.LineSegment(V(-37.8, -34.9, 0), V(-39.6, -37.9, 0)),  # 0
    Part.LineSegment(V(-39.6, -37.9, 0), V(-43, -37.9, 0)),  # 1
    Part.LineSegment(V(-43, -37.9, 0), V(-44.7, -34.9, 0)),  # 2
    Part.LineSegment(V(-44.7, -34.9, 0), V(-43, -31.9, 0)),  # 3
    Part.LineSegment(V(-43, -31.9, 0), V(-39.6, -31.9, 0)),  # 4
    Part.LineSegment(V(-39.6, -31.9, 0), V(-37.8, -34.9, 0)),  # 5
], False)
sketch11.addConstraint([
    Sketcher.Constraint("Coincident", 0, 2, 1, 1),
    Sketcher.Constraint("Coincident", 1, 2, 2, 1),
    Sketcher.Constraint("Coincident", 2, 2, 3, 1),
    Sketcher.Constraint("Coincident", 3, 2, 4, 1),
    Sketcher.Constraint("Coincident", 4, 2, 5, 1),
    Sketcher.Constraint("Coincident", 5, 2, 0, 1),
    Sketcher.Constraint("Horizontal", 1),
    Sketcher.Constraint("Horizontal", 4),
    Sketcher.Constraint("Parallel", 0, 3),
    Sketcher.Constraint("Parallel", 2, 5),
    Sketcher.Constraint("Horizontal", 2, 2, 5, 2),
    Sketcher.Constraint("Vertical", 1, 2, 3, 2),
    Sketcher.Constraint("Vertical", 0, 2, 4, 2),
    Sketcher.Constraint("Angle", 0, Q("-120 deg")),
    Sketcher.Constraint("DistanceX", 1, 2, 1, 1, Q("0.1357 in")),
    Sketcher.Constraint("DistanceY", 2, 2, -1, 1, Q("1.375 in")),
    Sketcher.Constraint("Distance", 0, Q("0.1357 in")),
    Sketcher.Constraint("DistanceX", 2, 2, -1, 1, Q("1.7607 in")),
])
pocket6 = doc.addObject("PartDesign::Pocket", "Pocket005")
body.addObject(pocket6)
pocket6.Profile = sketch11
pocket6.Length = 2.4
pocket6.Reversed = True

# Sketch on YZ plane
sketch12 = doc.addObject("Sketcher::SketchObject", "Sketch011")
body.addObject(sketch12)
sketch12.AttachmentSupport = (doc.YZ_Plane, [""])
sketch12.MapMode = "FlatFace"
sketch12.AttachmentOffset = App.Placement(V(0, 0, -1.75 * 25.4), App.Rotation())
sketch12.addGeometry(Part.Circle(V(0, 18.4, 0), V(0, 0, 1), 1.6), False)
sketch12.addConstraint([
    Sketcher.Constraint("PointOnObject", 0, 3, -2),
    Sketcher.Constraint("Diameter", 0, Q("0.125 in")),
    Sketcher.Constraint("DistanceY", -1, 1, 0, 3, 18.41875),
])
pocket7 = doc.addObject("PartDesign::Pocket", "Pocket006")
body.addObject(pocket7)
pocket7.Profile = sketch12
pocket7.Type = "ThroughAll"

doc.recompute()
